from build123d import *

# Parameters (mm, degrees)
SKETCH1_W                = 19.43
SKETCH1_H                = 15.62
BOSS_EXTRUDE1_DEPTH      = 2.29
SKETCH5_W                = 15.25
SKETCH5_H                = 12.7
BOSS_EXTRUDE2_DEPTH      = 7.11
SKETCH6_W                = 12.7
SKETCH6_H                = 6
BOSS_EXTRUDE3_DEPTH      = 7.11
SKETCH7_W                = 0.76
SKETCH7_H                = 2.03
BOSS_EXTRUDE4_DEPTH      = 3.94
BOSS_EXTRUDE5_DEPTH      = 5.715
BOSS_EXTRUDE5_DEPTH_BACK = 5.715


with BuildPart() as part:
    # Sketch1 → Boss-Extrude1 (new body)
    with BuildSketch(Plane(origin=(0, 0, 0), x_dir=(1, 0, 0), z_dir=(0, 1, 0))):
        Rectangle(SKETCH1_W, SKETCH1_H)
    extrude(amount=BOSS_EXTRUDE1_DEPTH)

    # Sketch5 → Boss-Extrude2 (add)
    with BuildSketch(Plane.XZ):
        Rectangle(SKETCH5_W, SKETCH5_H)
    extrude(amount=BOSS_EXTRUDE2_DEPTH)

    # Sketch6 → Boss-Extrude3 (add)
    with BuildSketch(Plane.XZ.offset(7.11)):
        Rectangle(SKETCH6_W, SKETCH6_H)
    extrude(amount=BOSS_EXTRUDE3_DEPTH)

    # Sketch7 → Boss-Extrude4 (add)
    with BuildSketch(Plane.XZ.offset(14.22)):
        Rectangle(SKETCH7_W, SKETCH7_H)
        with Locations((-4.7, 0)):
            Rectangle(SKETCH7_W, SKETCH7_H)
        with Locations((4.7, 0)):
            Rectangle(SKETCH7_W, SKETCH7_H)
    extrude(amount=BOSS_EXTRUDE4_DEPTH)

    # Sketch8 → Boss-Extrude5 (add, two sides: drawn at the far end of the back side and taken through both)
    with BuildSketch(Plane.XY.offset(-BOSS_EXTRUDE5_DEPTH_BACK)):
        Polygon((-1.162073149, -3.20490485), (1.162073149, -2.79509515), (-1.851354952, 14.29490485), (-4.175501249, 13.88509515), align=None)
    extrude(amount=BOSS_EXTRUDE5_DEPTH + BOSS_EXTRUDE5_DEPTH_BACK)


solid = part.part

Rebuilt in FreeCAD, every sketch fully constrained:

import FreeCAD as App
import Part
import Sketcher
from FreeCAD import Vector
Q = App.Units.Quantity


def add_polygon(sketch, points):
    """Adds a closed chain of lines whose ends are joined by coincident constraints."""
    first, n = sketch.GeometryCount, len(points)
    for a, b in zip(points, points[1:] + points[:1]):
        sketch.addGeometry(Part.LineSegment(App.Vector(*a, 0), App.Vector(*b, 0)), False)
    for i in range(n):
        sketch.addConstraint(Sketcher.Constraint("Coincident", first + i, 2, first + (i + 1) % n, 1))

doc = App.newDocument("Part")
body = doc.addObject("PartDesign::Body", "Body")

# Sketch on XZ plane
sketch1 = body.newObject("Sketcher::SketchObject", "Sketch")
sketch1.AttachmentSupport = (doc.getObject("XZ_Plane"), [""])
sketch1.MapMode = "FlatFace"
add_polygon(sketch1, [(-10, -8), (-10, 8), (10, 8), (10, -8)])  # lines 0-3
sketch1.addConstraint(Sketcher.Constraint("Vertical", 0))
sketch1.addConstraint(Sketcher.Constraint("Horizontal", 1))
sketch1.addConstraint(Sketcher.Constraint("Vertical", 2))
sketch1.addConstraint(Sketcher.Constraint("Horizontal", 3))
sketch1.addConstraint(Sketcher.Constraint("Symmetric", 0, 2, 2, 2, -1, 1))
sketch1.addConstraint(Sketcher.Constraint("DistanceX", 1, 1, 1, 2, 19.43))
sketch1.addConstraint(Sketcher.Constraint("DistanceY", 0, 1, 0, 2, 15.62))
pad1 = body.newObject("PartDesign::Pad", "Pad")
pad1.Profile = sketch1
pad1.Length = 2.29
pad1.Reversed = True

# Sketch on XZ plane
sketch2 = body.newObject("Sketcher::SketchObject", "Sketch001")
sketch2.AttachmentSupport = (doc.getObject("XZ_Plane"), [""])
sketch2.MapMode = "FlatFace"
add_polygon(sketch2, [(-8, 6), (-8, -6), (8, -6), (8, 6)])  # lines 0-3
sketch2.addConstraint(Sketcher.Constraint("Vertical", 0))
sketch2.addConstraint(Sketcher.Constraint("Horizontal", 1))
sketch2.addConstraint(Sketcher.Constraint("Vertical", 2))
sketch2.addConstraint(Sketcher.Constraint("Horizontal", 3))
sketch2.addConstraint(Sketcher.Constraint("Symmetric", 0, 2, 2, 2, -1, 1))
sketch2.addConstraint(Sketcher.Constraint("DistanceY", 0, 2, 0, 1, Q("0.5 in")))
sketch2.addConstraint(Sketcher.Constraint("DistanceX", 1, 1, 1, 2, 15.25))
pad2 = body.newObject("PartDesign::Pad", "Pad001")
pad2.Profile = sketch2
pad2.Length = 7.11

# Sketch on XZ plane
sketch3 = body.newObject("Sketcher::SketchObject", "Sketch002")
sketch3.AttachmentSupport = (doc.getObject("XZ_Plane"), [""])
sketch3.MapMode = "FlatFace"
sketch3.AttachmentOffset = App.Placement(Vector(0, 0, 7.11), App.Rotation())
add_polygon(sketch3, [(-6, 3), (-6, -3), (6, -3), (6, 3)])  # lines 0-3
sketch3.addConstraint(Sketcher.Constraint("Vertical", 0))
sketch3.addConstraint(Sketcher.Constraint("Horizontal", 1))
sketch3.addConstraint(Sketcher.Constraint("Vertical", 2))
sketch3.addConstraint(Sketcher.Constraint("Horizontal", 3))
sketch3.addConstraint(Sketcher.Constraint("Symmetric", 0, 2, 2, 2, -1, 1))
sketch3.addConstraint(Sketcher.Constraint("DistanceX", 1, 1, 1, 2, Q("0.5 in")))
sketch3.addConstraint(Sketcher.Constraint("DistanceY", 0, 2, 0, 1, 6.0))
pad3 = body.newObject("PartDesign::Pad", "Pad002")
pad3.Profile = sketch3
pad3.Length = 7.11

# Sketch on XZ plane
sketch4 = body.newObject("Sketcher::SketchObject", "Sketch003")
sketch4.AttachmentSupport = (doc.getObject("XZ_Plane"), [""])
sketch4.MapMode = "FlatFace"
sketch4.AttachmentOffset = App.Placement(Vector(0, 0, 14.22), App.Rotation())
add_polygon(sketch4, [(-0.4, 1), (-0.4, -1), (0.4, -1), (0.4, 1)])  # lines 0-3
add_polygon(sketch4, [(-5.1, 1), (-5.1, -1), (-4.3, -1), (-4.3, 1)])  # lines 4-7
add_polygon(sketch4, [(4.3, 1), (4.3, -1), (5.1, -1), (5.1, 1)])  # lines 8-11
sketch4.addConstraint(Sketcher.Constraint("Vertical", 0))
sketch4.addConstraint(Sketcher.Constraint("Horizontal", 1))
sketch4.addConstraint(Sketcher.Constraint("Vertical", 2))
sketch4.addConstraint(Sketcher.Constraint("Horizontal", 3))
sketch4.addConstraint(Sketcher.Constraint("Vertical", 4))
sketch4.addConstraint(Sketcher.Constraint("Horizontal", 5))
sketch4.addConstraint(Sketcher.Constraint("Vertical", 6))
sketch4.addConstraint(Sketcher.Constraint("Horizontal", 7))
sketch4.addConstraint(Sketcher.Constraint("Vertical", 8))
sketch4.addConstraint(Sketcher.Constraint("Horizontal", 9))
sketch4.addConstraint(Sketcher.Constraint("Vertical", 10))
sketch4.addConstraint(Sketcher.Constraint("Horizontal", 11))
sketch4.addConstraint(Sketcher.Constraint("Symmetric", 0, 2, 2, 2, -1, 1))
sketch4.addConstraint(Sketcher.Constraint("Symmetric", 6, 2, 8, 2, -1, 1))
sketch4.addConstraint(Sketcher.Constraint("Symmetric", 4, 2, 10, 2, -1, 1))
sketch4.addConstraint(Sketcher.Constraint("Horizontal", 1, 2, 4, 2))
sketch4.addConstraint(Sketcher.Constraint("Horizontal", 3, 2, 6, 2))
sketch4.addConstraint(Sketcher.Constraint("Equal", 3, 5))
sketch4.addConstraint(Sketcher.Constraint("DistanceX", 4, 2, -1, 1, Q("0.2 in")))
sketch4.addConstraint(Sketcher.Constraint("DistanceX", 1, 1, 1, 2, 0.76))
sketch4.addConstraint(Sketcher.Constraint("DistanceY", 0, 2, 0, 1, 2.03))
pad4 = body.newObject("PartDesign::Pad", "Pad003")
pad4.Profile = sketch4
pad4.Length = 3.94

# Sketch on XY plane
sketch5 = body.newObject("Sketcher::SketchObject", "Sketch004")
sketch5.AttachmentSupport = (doc.getObject("XY_Plane"), [""])
sketch5.MapMode = "FlatFace"
add_polygon(sketch5, [(-1.2, -3.2), (1.2, -2.8), (-1.9, 14.3), (-4.2, 13.9)])  # lines 0-3
sketch5.addConstraint(Sketcher.Constraint("Perpendicular", 0, 1))
sketch5.addConstraint(Sketcher.Constraint("Perpendicular", 1, 2))
sketch5.addConstraint(Sketcher.Constraint("Perpendicular", 2, 3))
sketch5.addConstraint(Sketcher.Constraint("Angle", 0, Q("10 deg")))
sketch5.addConstraint(Sketcher.Constraint("Distance", 0, 2.36))
sketch5.addConstraint(Sketcher.Constraint("DistanceX", 2, 2, -1, 1, 4.175501))
sketch5.addConstraint(Sketcher.Constraint("DistanceY", 0, 2, 1, 2, 17.09))
sketch5.addConstraint(Sketcher.Constraint("DistanceY", 0, 2, -1, 1, 2.795095))
pad5 = body.newObject("PartDesign::Pad", "Pad004")
pad5.Profile = sketch5
pad5.Type = "TwoLengths"
pad5.Length = Q("0.225 in")
pad5.Length2 = Q("0.225 in")

doc.recompute()
